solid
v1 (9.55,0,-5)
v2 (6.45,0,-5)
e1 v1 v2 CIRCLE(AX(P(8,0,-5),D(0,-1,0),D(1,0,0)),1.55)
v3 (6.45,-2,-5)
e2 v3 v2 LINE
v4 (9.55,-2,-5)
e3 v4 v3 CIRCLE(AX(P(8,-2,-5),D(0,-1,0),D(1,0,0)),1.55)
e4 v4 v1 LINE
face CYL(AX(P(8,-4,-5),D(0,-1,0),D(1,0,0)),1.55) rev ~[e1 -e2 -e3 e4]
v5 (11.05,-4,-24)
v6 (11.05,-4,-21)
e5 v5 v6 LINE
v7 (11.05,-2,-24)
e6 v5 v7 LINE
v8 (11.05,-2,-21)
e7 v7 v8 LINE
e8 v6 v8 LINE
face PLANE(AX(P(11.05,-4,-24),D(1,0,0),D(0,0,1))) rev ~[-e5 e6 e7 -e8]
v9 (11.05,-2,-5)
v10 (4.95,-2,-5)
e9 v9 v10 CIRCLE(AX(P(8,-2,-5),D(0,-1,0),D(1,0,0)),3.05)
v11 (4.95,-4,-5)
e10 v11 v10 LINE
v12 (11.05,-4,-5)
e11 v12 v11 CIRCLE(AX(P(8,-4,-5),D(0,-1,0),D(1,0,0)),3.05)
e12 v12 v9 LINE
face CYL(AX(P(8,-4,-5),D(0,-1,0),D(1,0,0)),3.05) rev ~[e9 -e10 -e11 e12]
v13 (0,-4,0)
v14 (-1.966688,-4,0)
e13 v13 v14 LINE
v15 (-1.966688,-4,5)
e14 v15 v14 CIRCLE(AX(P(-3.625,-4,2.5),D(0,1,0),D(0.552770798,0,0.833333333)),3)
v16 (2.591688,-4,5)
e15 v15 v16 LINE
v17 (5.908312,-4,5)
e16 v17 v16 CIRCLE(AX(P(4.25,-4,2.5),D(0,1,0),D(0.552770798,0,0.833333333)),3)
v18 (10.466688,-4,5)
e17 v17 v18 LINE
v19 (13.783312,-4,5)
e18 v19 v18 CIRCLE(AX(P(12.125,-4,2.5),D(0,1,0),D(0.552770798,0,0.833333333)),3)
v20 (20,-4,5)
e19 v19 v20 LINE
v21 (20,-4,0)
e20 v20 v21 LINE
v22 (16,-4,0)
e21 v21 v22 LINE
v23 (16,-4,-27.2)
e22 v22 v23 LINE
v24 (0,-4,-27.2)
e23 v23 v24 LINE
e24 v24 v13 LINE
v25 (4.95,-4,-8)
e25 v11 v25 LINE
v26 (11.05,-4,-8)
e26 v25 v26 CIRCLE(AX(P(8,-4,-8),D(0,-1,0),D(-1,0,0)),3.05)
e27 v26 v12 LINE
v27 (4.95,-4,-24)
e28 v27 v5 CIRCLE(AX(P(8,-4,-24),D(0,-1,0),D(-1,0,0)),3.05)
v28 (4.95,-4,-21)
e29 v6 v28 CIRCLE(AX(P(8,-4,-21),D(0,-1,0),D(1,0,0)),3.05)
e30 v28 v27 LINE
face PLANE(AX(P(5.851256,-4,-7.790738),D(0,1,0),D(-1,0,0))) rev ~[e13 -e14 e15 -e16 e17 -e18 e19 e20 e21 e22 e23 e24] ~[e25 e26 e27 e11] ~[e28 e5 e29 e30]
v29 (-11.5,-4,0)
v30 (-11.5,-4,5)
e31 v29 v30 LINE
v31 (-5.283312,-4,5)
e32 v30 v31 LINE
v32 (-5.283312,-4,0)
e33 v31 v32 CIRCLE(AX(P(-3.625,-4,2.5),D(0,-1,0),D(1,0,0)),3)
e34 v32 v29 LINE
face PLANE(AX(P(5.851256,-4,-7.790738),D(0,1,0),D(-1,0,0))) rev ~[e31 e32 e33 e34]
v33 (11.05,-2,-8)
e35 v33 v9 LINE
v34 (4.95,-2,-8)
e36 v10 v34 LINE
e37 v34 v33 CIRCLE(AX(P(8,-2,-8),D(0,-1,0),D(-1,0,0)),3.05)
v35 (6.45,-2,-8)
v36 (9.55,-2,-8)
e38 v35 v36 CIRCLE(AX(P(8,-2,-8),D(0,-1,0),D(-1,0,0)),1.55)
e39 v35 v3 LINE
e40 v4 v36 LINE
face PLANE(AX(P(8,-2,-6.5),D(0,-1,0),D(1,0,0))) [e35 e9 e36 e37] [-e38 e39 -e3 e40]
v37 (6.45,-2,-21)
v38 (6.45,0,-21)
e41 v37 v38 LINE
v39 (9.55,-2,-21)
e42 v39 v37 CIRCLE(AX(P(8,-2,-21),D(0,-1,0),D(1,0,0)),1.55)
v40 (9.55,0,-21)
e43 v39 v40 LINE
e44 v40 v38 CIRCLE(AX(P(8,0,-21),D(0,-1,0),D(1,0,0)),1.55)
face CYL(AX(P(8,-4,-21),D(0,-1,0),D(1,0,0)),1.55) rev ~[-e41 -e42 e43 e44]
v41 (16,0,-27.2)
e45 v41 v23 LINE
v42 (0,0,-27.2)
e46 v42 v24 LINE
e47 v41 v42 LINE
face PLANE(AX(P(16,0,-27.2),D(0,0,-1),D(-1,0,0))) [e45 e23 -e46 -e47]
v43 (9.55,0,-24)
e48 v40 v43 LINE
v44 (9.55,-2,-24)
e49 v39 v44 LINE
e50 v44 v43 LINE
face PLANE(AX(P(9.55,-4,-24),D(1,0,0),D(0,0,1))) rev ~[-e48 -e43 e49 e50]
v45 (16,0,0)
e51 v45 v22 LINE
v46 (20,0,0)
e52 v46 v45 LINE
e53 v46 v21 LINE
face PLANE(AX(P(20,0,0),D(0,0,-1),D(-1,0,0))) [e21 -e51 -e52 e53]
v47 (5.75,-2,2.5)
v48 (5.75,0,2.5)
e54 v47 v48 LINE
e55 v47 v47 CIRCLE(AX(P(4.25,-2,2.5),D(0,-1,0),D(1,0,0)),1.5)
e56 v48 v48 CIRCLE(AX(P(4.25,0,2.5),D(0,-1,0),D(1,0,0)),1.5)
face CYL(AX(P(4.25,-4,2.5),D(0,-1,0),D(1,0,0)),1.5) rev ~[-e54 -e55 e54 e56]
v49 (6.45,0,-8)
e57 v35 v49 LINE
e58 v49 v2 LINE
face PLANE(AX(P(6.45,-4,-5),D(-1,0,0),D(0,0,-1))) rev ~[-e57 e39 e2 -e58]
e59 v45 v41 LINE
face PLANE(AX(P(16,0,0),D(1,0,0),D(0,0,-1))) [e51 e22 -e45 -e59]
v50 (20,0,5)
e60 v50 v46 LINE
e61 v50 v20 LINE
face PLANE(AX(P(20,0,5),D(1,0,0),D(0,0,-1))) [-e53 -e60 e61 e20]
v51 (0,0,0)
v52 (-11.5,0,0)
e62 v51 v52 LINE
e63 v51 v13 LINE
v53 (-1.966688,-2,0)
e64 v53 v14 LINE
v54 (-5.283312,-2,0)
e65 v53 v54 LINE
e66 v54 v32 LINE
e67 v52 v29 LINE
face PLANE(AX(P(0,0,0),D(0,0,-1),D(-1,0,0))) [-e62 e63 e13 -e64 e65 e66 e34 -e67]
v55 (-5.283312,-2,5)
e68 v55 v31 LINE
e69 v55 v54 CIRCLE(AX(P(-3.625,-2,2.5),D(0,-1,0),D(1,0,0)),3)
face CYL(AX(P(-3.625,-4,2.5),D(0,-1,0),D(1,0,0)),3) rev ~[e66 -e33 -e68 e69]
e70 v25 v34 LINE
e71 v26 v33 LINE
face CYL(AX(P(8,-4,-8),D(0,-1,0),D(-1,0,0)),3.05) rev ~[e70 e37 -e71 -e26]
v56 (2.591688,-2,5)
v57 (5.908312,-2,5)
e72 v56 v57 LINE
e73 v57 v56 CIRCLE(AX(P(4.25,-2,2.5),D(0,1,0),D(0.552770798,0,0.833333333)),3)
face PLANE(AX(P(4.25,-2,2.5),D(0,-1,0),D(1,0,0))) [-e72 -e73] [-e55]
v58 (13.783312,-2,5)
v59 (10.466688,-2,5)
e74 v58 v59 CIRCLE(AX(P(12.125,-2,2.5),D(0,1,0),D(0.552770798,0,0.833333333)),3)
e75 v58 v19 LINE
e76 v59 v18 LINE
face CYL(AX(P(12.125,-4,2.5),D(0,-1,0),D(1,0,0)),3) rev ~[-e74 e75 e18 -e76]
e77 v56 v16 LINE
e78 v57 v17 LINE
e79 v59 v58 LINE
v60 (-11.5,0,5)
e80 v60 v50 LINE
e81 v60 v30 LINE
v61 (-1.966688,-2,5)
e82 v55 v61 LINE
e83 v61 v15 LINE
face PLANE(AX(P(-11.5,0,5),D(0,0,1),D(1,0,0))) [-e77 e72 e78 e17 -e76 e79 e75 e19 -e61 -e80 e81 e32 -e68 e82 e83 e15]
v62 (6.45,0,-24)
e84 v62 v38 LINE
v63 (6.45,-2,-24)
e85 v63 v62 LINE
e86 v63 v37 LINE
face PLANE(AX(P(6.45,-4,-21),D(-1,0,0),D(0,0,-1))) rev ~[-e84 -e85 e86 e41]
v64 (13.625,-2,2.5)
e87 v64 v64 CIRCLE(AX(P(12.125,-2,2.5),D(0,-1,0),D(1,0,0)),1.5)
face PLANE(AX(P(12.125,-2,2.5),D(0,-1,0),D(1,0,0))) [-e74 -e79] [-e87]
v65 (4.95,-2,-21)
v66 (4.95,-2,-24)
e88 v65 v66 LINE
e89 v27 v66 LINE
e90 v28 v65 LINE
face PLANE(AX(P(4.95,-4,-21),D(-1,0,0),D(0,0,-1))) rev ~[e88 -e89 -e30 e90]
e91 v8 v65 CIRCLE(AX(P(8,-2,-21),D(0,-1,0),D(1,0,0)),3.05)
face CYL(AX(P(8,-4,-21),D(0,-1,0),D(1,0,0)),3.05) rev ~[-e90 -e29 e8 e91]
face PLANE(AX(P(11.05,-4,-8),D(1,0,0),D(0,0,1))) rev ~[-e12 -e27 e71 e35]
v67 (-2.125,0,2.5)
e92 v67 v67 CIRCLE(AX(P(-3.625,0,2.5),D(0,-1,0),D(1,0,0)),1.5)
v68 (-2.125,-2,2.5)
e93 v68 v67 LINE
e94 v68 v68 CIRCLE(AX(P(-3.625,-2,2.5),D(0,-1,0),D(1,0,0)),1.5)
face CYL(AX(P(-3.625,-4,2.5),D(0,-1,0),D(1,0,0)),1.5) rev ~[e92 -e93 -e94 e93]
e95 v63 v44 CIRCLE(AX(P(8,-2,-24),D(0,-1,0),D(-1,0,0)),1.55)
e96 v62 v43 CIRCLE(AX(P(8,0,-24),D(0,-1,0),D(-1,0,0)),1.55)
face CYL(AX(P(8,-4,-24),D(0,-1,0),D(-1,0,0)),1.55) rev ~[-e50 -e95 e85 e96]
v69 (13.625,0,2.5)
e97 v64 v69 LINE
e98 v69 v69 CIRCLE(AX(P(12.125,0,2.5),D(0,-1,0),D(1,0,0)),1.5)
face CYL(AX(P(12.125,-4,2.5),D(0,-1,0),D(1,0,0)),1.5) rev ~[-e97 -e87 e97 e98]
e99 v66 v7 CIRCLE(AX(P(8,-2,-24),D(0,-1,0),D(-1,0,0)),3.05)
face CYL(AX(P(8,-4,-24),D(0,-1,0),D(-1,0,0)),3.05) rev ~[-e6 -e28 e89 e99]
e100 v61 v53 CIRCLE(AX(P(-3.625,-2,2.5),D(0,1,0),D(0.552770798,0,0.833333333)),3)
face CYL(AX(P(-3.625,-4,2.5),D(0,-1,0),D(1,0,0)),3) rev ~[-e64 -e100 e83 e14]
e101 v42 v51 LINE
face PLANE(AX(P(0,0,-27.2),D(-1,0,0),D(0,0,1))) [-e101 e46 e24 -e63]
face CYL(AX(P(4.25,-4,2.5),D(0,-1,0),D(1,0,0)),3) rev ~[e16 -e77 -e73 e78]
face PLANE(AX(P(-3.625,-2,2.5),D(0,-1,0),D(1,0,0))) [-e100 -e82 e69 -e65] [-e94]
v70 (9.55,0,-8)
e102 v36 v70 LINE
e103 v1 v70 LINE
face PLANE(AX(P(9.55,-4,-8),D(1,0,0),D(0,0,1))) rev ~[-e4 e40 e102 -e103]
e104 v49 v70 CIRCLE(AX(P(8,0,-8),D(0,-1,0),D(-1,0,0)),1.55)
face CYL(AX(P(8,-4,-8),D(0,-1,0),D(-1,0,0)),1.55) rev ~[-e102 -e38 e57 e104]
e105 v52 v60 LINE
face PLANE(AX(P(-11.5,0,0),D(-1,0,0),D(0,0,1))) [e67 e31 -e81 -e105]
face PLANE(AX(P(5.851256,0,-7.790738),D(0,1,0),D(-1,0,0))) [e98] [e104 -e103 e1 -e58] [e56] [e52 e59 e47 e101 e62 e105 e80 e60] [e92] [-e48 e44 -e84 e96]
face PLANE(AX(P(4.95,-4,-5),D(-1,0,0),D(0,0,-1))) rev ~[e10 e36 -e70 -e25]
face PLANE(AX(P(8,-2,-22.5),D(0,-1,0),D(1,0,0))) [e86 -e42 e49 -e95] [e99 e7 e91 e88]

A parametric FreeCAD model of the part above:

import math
import FreeCAD as App
import Part
import Sketcher
Q = App.Units.Quantity


def add_polygon(sketch, points):
    """Adds a closed chain of lines whose ends are joined by coincident constraints."""
    first, n = sketch.GeometryCount, len(points)
    for a, b in zip(points, points[1:] + points[:1]):
        sketch.addGeometry(Part.LineSegment(App.Vector(*a, 0), App.Vector(*b, 0)), False)
    for i in range(n):
        sketch.addConstraint(Sketcher.Constraint("Coincident", first + i, 2, first + (i + 1) % n, 1))

doc = App.newDocument("Part")
body = doc.addObject("PartDesign::Body", "Body")

# Sketch on XZ plane
sketch1 = body.newObject("Sketcher::SketchObject", "Sketch")
sketch1.AttachmentSupport = (doc.getObject("XZ_Plane"), [""])
sketch1.MapMode = "FlatFace"
add_polygon(sketch1, [(16, -27.2), (16, 0), (20, 0), (20, 5), (-11.5, 5), (-11.5, 0), (0, 0), (0, -27.2)])  # lines 0-7
sketch1.addConstraint(Sketcher.Constraint("Vertical", 0))
sketch1.addConstraint(Sketcher.Constraint("Horizontal", 1))
sketch1.addConstraint(Sketcher.Constraint("Vertical", 2))
sketch1.addConstraint(Sketcher.Constraint("Horizontal", 3))
sketch1.addConstraint(Sketcher.Constraint("Vertical", 4))
sketch1.addConstraint(Sketcher.Constraint("Horizontal", 5))
sketch1.addConstraint(Sketcher.Constraint("Vertical", 6))
sketch1.addConstraint(Sketcher.Constraint("Horizontal", 7))
sketch1.addConstraint(Sketcher.Constraint("Coincident", 5, 2, -1, 1))
sketch1.addConstraint(Sketcher.Constraint("PointOnObject", 0, 2, -1))
sketch1.addConstraint(Sketcher.Constraint("DistanceX", 1, 1, 1, 2, Q("4 mm")))
sketch1.addConstraint(Sketcher.Constraint("DistanceX", 7, 1, 7, 2, Q("16 mm")))
sketch1.addConstraint(Sketcher.Constraint("DistanceY", 2, 1, 2, 2, Q("5 mm")))
sketch1.addConstraint(Sketcher.Constraint("DistanceX", 3, 2, 3, 1, Q("31.5 mm")))
sketch1.addConstraint(Sketcher.Constraint("DistanceY", 0, 1, 0, 2, Q("27.2 mm")))
pad1 = body.newObject("PartDesign::Pad", "Pad")
pad1.Profile = sketch1
pad1.Length = 4

# Sketch on XZ plane
sketch2 = body.newObject("Sketcher::SketchObject", "Sketch001")
sketch2.AttachmentSupport = (doc.getObject("XZ_Plane"), [""])
sketch2.MapMode = "FlatFace"
sketch2.AttachmentOffset = App.Placement(App.Vector(0, 0, 4), App.Rotation())
sketch2.addGeometry(Part.Circle(App.Vector(-3.6, 2.5, 0), App.Vector(0, 0, 1), 1.5), False)
sketch2.addGeometry(Part.Circle(App.Vector(4.2, 2.5, 0), App.Vector(0, 0, 1), 1.5), False)
sketch2.addGeometry(Part.Circle(App.Vector(12.1, 2.5, 0), App.Vector(0, 0, 1), 1.5), False)
sketch2.addConstraint(Sketcher.Constraint("Equal", 0, 1))
sketch2.addConstraint(Sketcher.Constraint("Equal", 1, 2))
sketch2.addConstraint(Sketcher.Constraint("Horizontal", 0, 3, 1, 3))
sketch2.addConstraint(Sketcher.Constraint("Horizontal", 1, 3, 2, 3))
sketch2.addConstraint(Sketcher.Constraint("Diameter", 0, Q("3 mm")))
sketch2.addConstraint(Sketcher.Constraint("DistanceY", -1, 1, 0, 3, Q("2.5 mm")))
sketch2.addConstraint(Sketcher.Constraint("DistanceX", -1, 1, 1, 3, Q("4.25 mm")))
sketch2.addConstraint(Sketcher.Constraint("DistanceX", 0, 3, 2, 3, Q("15.75 mm")))
sketch2.addConstraint(Sketcher.Constraint("DistanceX", 0, 3, -1, 1, Q("3.625 mm")))
pocket1 = body.newObject("PartDesign::Pocket", "Pocket")
pocket1.Profile = sketch2
pocket1.Type = "ThroughAll"

# Sketch on XZ plane
sketch3 = body.newObject("Sketcher::SketchObject", "Sketch002")
sketch3.AttachmentSupport = (doc.getObject("XZ_Plane"), [""])
sketch3.MapMode = "FlatFace"
sketch3.AttachmentOffset = App.Placement(App.Vector(0, 0, 4), App.Rotation())
sketch3.addGeometry(Part.ArcOfCircle(Part.Circle(App.Vector(8, -5, 0), App.Vector(0, 0, 1), 1.6), math.radians(0), math.radians(180)), False)
sketch3.addGeometry(Part.LineSegment(App.Vector(6.5, -5, 0), App.Vector(6.5, -8, 0)), False)
sketch3.addGeometry(Part.ArcOfCircle(Part.Circle(App.Vector(8, -8, 0), App.Vector(0, 0, 1), 1.6), math.radians(180), math.radians(360)), False)
sketch3.addGeometry(Part.LineSegment(App.Vector(9.6, -8, 0), App.Vector(9.6, -5, 0)), False)
sketch3.addGeometry(Part.ArcOfCircle(Part.Circle(App.Vector(8, -21, 0), App.Vector(0, 0, 1), 1.6), math.radians(0), math.radians(180)), False)
sketch3.addGeometry(Part.LineSegment(App.Vector(6.5, -21, 0), App.Vector(6.5, -24, 0)), False)
sketch3.addGeometry(Part.ArcOfCircle(Part.Circle(App.Vector(8, -24, 0), App.Vector(0, 0, 1), 1.6), math.radians(180), math.radians(360)), False)
sketch3.addGeometry(Part.LineSegment(App.Vector(9.6, -24, 0), App.Vector(9.6, -21, 0)), False)
sketch3.addConstraint(Sketcher.Constraint("Tangent", 0, 2, 1, 1))
sketch3.addConstraint(Sketcher.Constraint("Tangent", 1, 2, 2, 1))
sketch3.addConstraint(Sketcher.Constraint("Tangent", 2, 2, 3, 1))
sketch3.addConstraint(Sketcher.Constraint("Tangent", 3, 2, 0, 1))
sketch3.addConstraint(Sketcher.Constraint("Tangent", 4, 2, 5, 1))
sketch3.addConstraint(Sketcher.Constraint("Tangent", 5, 2, 6, 1))
sketch3.addConstraint(Sketcher.Constraint("Tangent", 6, 2, 7, 1))
sketch3.addConstraint(Sketcher.Constraint("Tangent", 7, 2, 4, 1))
sketch3.addConstraint(Sketcher.Constraint("Vertical", 1))
sketch3.addConstraint(Sketcher.Constraint("Vertical", 3))
sketch3.addConstraint(Sketcher.Constraint("Vertical", 5))
sketch3.addConstraint(Sketcher.Constraint("Vertical", 7))
sketch3.addConstraint(Sketcher.Constraint("Equal", 2, 4))
sketch3.addConstraint(Sketcher.Constraint("Vertical", 2, 3, 4, 3))
sketch3.addConstraint(Sketcher.Constraint("Equal", 3, 5))
sketch3.addConstraint(Sketcher.Constraint("DistanceY", 1, 2, 1, 1, Q("3 mm")))
sketch3.addConstraint(Sketcher.Constraint("Radius", 0, Q("1.55 mm")))
sketch3.addConstraint(Sketcher.Constraint("DistanceX", -1, 1, 0, 3, Q("8 mm")))
sketch3.addConstraint(Sketcher.Constraint("DistanceY", 0, 3, -1, 1, Q("5 mm")))
sketch3.addConstraint(Sketcher.Constraint("DistanceY", 4, 3, -1, 1, Q("21 mm")))
pocket2 = body.newObject("PartDesign::Pocket", "Pocket001")
pocket2.Profile = sketch3
pocket2.Type = "ThroughAll"

# Sketch on XZ plane
sketch4 = body.newObject("Sketcher::SketchObject", "Sketch003")
sketch4.AttachmentSupport = (doc.getObject("XZ_Plane"), [""])
sketch4.MapMode = "FlatFace"
sketch4.AttachmentOffset = App.Placement(App.Vector(0, 0, 4), App.Rotation())
sketch4.addGeometry(Part.Circle(App.Vector(-3.6, 2.5, 0), App.Vector(0, 0, 1), 3), False)
sketch4.addGeometry(Part.Circle(App.Vector(4.2, 2.5, 0), App.Vector(0, 0, 1), 3), False)
sketch4.addGeometry(Part.Circle(App.Vector(12.1, 2.5, 0), App.Vector(0, 0, 1), 3), False)
sketch4.addGeometry(Part.ArcOfCircle(Part.Circle(App.Vector(8, -5, 0), App.Vector(0, 0, 1), 3), math.radians(0), math.radians(180)), False)
sketch4.addGeometry(Part.LineSegment(App.Vector(5, -5, 0), App.Vector(5, -8, 0)), False)
sketch4.addGeometry(Part.ArcOfCircle(Part.Circle(App.Vector(8, -8, 0), App.Vector(0, 0, 1), 3), math.radians(180), math.radians(360)), False)
sketch4.addGeometry(Part.LineSegment(App.Vector(11.1, -8, 0), App.Vector(11.1, -5, 0)), False)
sketch4.addGeometry(Part.ArcOfCircle(Part.Circle(App.Vector(8, -21, 0), App.Vector(0, 0, 1), 3), math.radians(0), math.radians(180)), False)
sketch4.addGeometry(Part.LineSegment(App.Vector(5, -21, 0), App.Vector(5, -24, 0)), False)
sketch4.addGeometry(Part.ArcOfCircle(Part.Circle(App.Vector(8, -24, 0), App.Vector(0, 0, 1), 3), math.radians(180), math.radians(360)), False)
sketch4.addGeometry(Part.LineSegment(App.Vector(11.1, -24, 0), App.Vector(11.1, -21, 0)), False)
sketch4.addConstraint(Sketcher.Constraint("Tangent", 3, 2, 4, 1))
sketch4.addConstraint(Sketcher.Constraint("Tangent", 4, 2, 5, 1))
sketch4.addConstraint(Sketcher.Constraint("Tangent", 5, 2, 6, 1))
sketch4.addConstraint(Sketcher.Constraint("Tangent", 6, 2, 3, 1))
sketch4.addConstraint(Sketcher.Constraint("Tangent", 7, 2, 8, 1))
sketch4.addConstraint(Sketcher.Constraint("Tangent", 8, 2, 9, 1))
sketch4.addConstraint(Sketcher.Constraint("Tangent", 9, 2, 10, 1))
sketch4.addConstraint(Sketcher.Constraint("Tangent", 10, 2, 7, 1))
sketch4.addConstraint(Sketcher.Constraint("Vertical", 4))
sketch4.addConstraint(Sketcher.Constraint("Vertical", 6))
sketch4.addConstraint(Sketcher.Constraint("Vertical", 8))
sketch4.addConstraint(Sketcher.Constraint("Vertical", 10))
sketch4.addConstraint(Sketcher.Constraint("Equal", 0, 1))
sketch4.addConstraint(Sketcher.Constraint("Equal", 1, 2))
sketch4.addConstraint(Sketcher.Constraint("Equal", 5, 7))
sketch4.addConstraint(Sketcher.Constraint("Horizontal", 0, 3, 1, 3))
sketch4.addConstraint(Sketcher.Constraint("Horizontal", 1, 3, 2, 3))
sketch4.addConstraint(Sketcher.Constraint("Vertical", 5, 3, 7, 3))
sketch4.addConstraint(Sketcher.Constraint("Equal", 6, 8))
sketch4.addConstraint(Sketcher.Constraint("Diameter", 0, Q("6 mm")))
sketch4.addConstraint(Sketcher.Constraint("DistanceY", 4, 2, 4, 1, Q("3 mm")))
sketch4.addConstraint(Sketcher.Constraint("Radius", 3, Q("3.05 mm")))
sketch4.addConstraint(Sketcher.Constraint("DistanceX", -1, 1, 3, 3, Q("8 mm")))
sketch4.addConstraint(Sketcher.Constraint("DistanceY", 3, 3, -1, 1, Q("5 mm")))
sketch4.addConstraint(Sketcher.Constraint("DistanceY", 7, 3, -1, 1, Q("21 mm")))
sketch4.addConstraint(Sketcher.Constraint("DistanceY", -1, 1, 0, 3, Q("2.5 mm")))
sketch4.addConstraint(Sketcher.Constraint("DistanceX", 1, 3, 3, 2, Q("0.7 mm")))
sketch4.addConstraint(Sketcher.Constraint("DistanceX", 0, 3, 2, 3, Q("15.75 mm")))
sketch4.addConstraint(Sketcher.Constraint("DistanceX", 0, 3, -1, 1, Q("3.625 mm")))
pocket3 = body.newObject("PartDesign::Pocket", "Pocket002")
pocket3.Profile = sketch4
pocket3.Length = 2

doc.recompute()
